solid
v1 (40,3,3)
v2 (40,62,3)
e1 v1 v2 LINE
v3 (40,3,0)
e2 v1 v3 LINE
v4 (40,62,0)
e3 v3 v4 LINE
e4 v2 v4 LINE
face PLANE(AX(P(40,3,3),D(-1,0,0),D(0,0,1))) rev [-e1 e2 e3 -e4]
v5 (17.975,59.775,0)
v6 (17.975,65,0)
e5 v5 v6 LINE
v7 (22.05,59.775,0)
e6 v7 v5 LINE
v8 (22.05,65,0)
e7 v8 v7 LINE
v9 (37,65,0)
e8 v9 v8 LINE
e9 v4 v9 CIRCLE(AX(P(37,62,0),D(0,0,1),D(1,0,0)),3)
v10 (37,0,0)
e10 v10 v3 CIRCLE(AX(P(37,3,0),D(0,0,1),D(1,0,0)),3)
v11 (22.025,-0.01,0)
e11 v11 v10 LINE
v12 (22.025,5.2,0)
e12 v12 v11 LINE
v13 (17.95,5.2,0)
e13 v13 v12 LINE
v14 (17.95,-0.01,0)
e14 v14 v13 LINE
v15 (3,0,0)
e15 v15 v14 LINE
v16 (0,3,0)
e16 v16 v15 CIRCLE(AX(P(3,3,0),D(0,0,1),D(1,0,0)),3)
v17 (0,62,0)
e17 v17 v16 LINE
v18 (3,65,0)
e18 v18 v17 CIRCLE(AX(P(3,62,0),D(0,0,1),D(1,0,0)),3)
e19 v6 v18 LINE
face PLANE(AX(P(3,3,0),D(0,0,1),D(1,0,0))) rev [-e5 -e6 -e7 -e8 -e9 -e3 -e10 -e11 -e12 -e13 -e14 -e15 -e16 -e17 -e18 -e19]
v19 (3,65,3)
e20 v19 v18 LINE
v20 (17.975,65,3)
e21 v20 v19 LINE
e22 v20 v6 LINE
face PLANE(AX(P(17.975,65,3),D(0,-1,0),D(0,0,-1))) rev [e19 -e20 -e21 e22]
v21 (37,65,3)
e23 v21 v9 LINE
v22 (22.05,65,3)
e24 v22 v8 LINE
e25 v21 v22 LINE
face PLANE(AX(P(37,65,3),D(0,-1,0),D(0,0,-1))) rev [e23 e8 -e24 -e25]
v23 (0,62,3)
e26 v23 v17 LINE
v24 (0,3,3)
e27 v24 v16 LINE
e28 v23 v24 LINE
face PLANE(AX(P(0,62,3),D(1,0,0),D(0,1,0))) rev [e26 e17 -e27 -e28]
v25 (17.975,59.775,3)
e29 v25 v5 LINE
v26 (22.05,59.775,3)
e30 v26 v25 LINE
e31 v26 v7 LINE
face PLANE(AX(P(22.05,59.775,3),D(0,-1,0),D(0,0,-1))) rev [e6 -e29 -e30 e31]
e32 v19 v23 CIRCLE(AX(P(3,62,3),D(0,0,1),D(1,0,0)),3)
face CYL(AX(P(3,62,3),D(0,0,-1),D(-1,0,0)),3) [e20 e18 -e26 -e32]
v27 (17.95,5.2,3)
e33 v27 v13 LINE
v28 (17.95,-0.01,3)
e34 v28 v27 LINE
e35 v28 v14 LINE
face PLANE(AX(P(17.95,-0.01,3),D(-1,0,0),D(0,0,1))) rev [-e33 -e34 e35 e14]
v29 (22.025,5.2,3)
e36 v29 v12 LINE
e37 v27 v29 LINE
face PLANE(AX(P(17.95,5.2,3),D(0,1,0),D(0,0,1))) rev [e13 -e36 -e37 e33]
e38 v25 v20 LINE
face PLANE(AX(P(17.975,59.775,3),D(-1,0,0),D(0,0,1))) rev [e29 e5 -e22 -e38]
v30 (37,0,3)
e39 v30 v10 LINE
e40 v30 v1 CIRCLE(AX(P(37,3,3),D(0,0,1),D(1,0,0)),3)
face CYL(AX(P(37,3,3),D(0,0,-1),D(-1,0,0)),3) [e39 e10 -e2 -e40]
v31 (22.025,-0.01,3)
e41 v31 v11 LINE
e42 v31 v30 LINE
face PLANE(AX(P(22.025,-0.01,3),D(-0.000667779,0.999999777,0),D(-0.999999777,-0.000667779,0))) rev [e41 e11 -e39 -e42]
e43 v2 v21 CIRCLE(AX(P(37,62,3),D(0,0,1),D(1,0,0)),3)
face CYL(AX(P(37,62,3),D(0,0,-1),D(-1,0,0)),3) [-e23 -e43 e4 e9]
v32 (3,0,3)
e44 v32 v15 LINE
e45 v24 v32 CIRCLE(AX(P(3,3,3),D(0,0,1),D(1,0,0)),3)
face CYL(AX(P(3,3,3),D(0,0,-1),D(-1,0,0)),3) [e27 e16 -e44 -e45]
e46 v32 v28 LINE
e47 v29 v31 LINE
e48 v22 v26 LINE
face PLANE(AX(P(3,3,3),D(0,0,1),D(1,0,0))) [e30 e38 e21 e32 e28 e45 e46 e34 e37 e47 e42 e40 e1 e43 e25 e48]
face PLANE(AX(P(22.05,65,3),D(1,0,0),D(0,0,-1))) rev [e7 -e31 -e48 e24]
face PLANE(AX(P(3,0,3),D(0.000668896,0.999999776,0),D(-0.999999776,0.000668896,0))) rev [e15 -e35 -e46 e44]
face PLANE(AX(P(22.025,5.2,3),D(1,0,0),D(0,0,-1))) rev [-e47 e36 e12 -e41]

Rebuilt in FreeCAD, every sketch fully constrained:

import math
import FreeCAD as App
import Part
import Sketcher
from FreeCAD import Vector

doc = App.newDocument("Part")
body = doc.addObject("PartDesign::Body", "Body")

# Sketch on XY plane
sketch1 = body.newObject("Sketcher::SketchObject", "Sketch")
sketch1.AttachmentSupport = (doc.getObject("XY_Plane"), [""])
sketch1.MapMode = "FlatFace"
sketch1.addGeometry(Part.LineSegment(Vector(3, 0, 0), Vector(17.9, 0, 0)), False)
sketch1.addGeometry(Part.LineSegment(Vector(17.9, 0, 0), Vector(17.9, 5.2, 0)), False)
sketch1.addGeometry(Part.LineSegment(Vector(17.9, 5.2, 0), Vector(22, 5.2, 0)), False)
sketch1.addGeometry(Part.LineSegment(Vector(22, 5.2, 0), Vector(22, 0, 0)), False)
sketch1.addGeometry(Part.LineSegment(Vector(22, 0, 0), Vector(37, 0, 0)), False)
sketch1.addGeometry(Part.ArcOfCircle(Part.Circle(Vector(37, 3, 0), Vector(0, 0, 1), 3), math.radians(-90), math.radians(0)), False)
sketch1.addGeometry(Part.LineSegment(Vector(40, 3, 0), Vector(40, 62, 0)), False)
sketch1.addGeometry(Part.ArcOfCircle(Part.Circle(Vector(37, 62, 0), Vector(0, 0, 1), 3), math.radians(0), math.radians(90)), False)
sketch1.addGeometry(Part.LineSegment(Vector(37, 65, 0), Vector(22.1, 65, 0)), False)
sketch1.addGeometry(Part.LineSegment(Vector(22.1, 65, 0), Vector(22.1, 59.8, 0)), False)
sketch1.addGeometry(Part.LineSegment(Vector(22.1, 59.8, 0), Vector(18, 59.8, 0)), False)
sketch1.addGeometry(Part.LineSegment(Vector(18, 59.8, 0), Vector(18, 65, 0)), False)
sketch1.addGeometry(Part.LineSegment(Vector(18, 65, 0), Vector(3, 65, 0)), False)
sketch1.addGeometry(Part.ArcOfCircle(Part.Circle(Vector(3, 62, 0), Vector(0, 0, 1), 3), math.radians(90), math.radians(180)), False)
sketch1.addGeometry(Part.LineSegment(Vector(0, 62, 0), Vector(0, 3, 0)), False)
sketch1.addGeometry(Part.ArcOfCircle(Part.Circle(Vector(3, 3, 0), Vector(0, 0, 1), 3), math.radians(180), math.radians(270)), False)
sketch1.addConstraint(Sketcher.Constraint("Coincident", 0, 2, 1, 1))
sketch1.addConstraint(Sketcher.Constraint("Coincident", 1, 2, 2, 1))
sketch1.addConstraint(Sketcher.Constraint("Coincident", 2, 2, 3, 1))
sketch1.addConstraint(Sketcher.Constraint("Coincident", 3, 2, 4, 1))
sketch1.addConstraint(Sketcher.Constraint("Coincident", 4, 2, 5, 1))
sketch1.addConstraint(Sketcher.Constraint("Tangent", 5, 2, 6, 1))
sketch1.addConstraint(Sketcher.Constraint("Tangent", 6, 2, 7, 1))
sketch1.addConstraint(Sketcher.Constraint("Tangent", 7, 2, 8, 1))
sketch1.addConstraint(Sketcher.Constraint("Coincident", 8, 2, 9, 1))
sketch1.addConstraint(Sketcher.Constraint("Coincident", 9, 2, 10, 1))
sketch1.addConstraint(Sketcher.Constraint("Coincident", 10, 2, 11, 1))
sketch1.addConstraint(Sketcher.Constraint("Coincident", 11, 2, 12, 1))
sketch1.addConstraint(Sketcher.Constraint("Tangent", 12, 2, 13, 1))
sketch1.addConstraint(Sketcher.Constraint("Tangent", 13, 2, 14, 1))
sketch1.addConstraint(Sketcher.Constraint("Tangent", 14, 2, 15, 1))
sketch1.addConstraint(Sketcher.Constraint("Coincident", 15, 2, 0, 1))
sketch1.addConstraint(Sketcher.Constraint("Vertical", 1))
sketch1.addConstraint(Sketcher.Constraint("Horizontal", 2))
sketch1.addConstraint(Sketcher.Constraint("Vertical", 3))
sketch1.addConstraint(Sketcher.Constraint("Vertical", 6))
sketch1.addConstraint(Sketcher.Constraint("Horizontal", 8))
sketch1.addConstraint(Sketcher.Constraint("Vertical", 9))
sketch1.addConstraint(Sketcher.Constraint("Horizontal", 10))
sketch1.addConstraint(Sketcher.Constraint("Vertical", 11))
sketch1.addConstraint(Sketcher.Constraint("Horizontal", 12))
sketch1.addConstraint(Sketcher.Constraint("Vertical", 14))
sketch1.addConstraint(Sketcher.Constraint("Equal", 5, 7))
sketch1.addConstraint(Sketcher.Constraint("Equal", 7, 13))
sketch1.addConstraint(Sketcher.Constraint("Equal", 13, 15))
sketch1.addConstraint(Sketcher.Constraint("PointOnObject", 4, 2, -1))
sketch1.addConstraint(Sketcher.Constraint("PointOnObject", 13, 2, -2))
sketch1.addConstraint(Sketcher.Constraint("PointOnObject", 15, 2, -1))
sketch1.addConstraint(Sketcher.Constraint("Horizontal", 7, 3, 13, 3))
sketch1.addConstraint(Sketcher.Constraint("Horizontal", 0, 2, 3, 2))
sketch1.addConstraint(Sketcher.Constraint("Vertical", 7, 3, 4, 2))
sketch1.addConstraint(Sketcher.Constraint("Vertical", 12, 2, 15, 2))
sketch1.addConstraint(Sketcher.Constraint("Equal", 2, 10))
sketch1.addConstraint(Sketcher.Constraint("Radius", 5, 3.0))
sketch1.addConstraint(Sketcher.Constraint("DistanceY", 6, 1, 6, 2, 59.0))
sketch1.addConstraint(Sketcher.Constraint("DistanceX", -1, 1, 5, 3, 37.0))
sketch1.addConstraint(Sketcher.Constraint("DistanceX", 8, 2, 8, 1, 14.95))
sketch1.addConstraint(Sketcher.Constraint("DistanceY", 1, 1, 1, 2, 5.21))
sketch1.addConstraint(Sketcher.Constraint("DistanceY", -1, 1, 1, 2, 5.2))
sketch1.addConstraint(Sketcher.Constraint("DistanceX", 2, 1, 2, 2, 4.075))
sketch1.addConstraint(Sketcher.Constraint("DistanceY", 9, 2, 9, 1, 5.225))
sketch1.addConstraint(Sketcher.Constraint("DistanceX", -1, 1, 0, 2, 17.95))
pad1 = body.newObject("PartDesign::Pad", "Pad")
pad1.Profile = sketch1
pad1.Length = 3

doc.recompute()
